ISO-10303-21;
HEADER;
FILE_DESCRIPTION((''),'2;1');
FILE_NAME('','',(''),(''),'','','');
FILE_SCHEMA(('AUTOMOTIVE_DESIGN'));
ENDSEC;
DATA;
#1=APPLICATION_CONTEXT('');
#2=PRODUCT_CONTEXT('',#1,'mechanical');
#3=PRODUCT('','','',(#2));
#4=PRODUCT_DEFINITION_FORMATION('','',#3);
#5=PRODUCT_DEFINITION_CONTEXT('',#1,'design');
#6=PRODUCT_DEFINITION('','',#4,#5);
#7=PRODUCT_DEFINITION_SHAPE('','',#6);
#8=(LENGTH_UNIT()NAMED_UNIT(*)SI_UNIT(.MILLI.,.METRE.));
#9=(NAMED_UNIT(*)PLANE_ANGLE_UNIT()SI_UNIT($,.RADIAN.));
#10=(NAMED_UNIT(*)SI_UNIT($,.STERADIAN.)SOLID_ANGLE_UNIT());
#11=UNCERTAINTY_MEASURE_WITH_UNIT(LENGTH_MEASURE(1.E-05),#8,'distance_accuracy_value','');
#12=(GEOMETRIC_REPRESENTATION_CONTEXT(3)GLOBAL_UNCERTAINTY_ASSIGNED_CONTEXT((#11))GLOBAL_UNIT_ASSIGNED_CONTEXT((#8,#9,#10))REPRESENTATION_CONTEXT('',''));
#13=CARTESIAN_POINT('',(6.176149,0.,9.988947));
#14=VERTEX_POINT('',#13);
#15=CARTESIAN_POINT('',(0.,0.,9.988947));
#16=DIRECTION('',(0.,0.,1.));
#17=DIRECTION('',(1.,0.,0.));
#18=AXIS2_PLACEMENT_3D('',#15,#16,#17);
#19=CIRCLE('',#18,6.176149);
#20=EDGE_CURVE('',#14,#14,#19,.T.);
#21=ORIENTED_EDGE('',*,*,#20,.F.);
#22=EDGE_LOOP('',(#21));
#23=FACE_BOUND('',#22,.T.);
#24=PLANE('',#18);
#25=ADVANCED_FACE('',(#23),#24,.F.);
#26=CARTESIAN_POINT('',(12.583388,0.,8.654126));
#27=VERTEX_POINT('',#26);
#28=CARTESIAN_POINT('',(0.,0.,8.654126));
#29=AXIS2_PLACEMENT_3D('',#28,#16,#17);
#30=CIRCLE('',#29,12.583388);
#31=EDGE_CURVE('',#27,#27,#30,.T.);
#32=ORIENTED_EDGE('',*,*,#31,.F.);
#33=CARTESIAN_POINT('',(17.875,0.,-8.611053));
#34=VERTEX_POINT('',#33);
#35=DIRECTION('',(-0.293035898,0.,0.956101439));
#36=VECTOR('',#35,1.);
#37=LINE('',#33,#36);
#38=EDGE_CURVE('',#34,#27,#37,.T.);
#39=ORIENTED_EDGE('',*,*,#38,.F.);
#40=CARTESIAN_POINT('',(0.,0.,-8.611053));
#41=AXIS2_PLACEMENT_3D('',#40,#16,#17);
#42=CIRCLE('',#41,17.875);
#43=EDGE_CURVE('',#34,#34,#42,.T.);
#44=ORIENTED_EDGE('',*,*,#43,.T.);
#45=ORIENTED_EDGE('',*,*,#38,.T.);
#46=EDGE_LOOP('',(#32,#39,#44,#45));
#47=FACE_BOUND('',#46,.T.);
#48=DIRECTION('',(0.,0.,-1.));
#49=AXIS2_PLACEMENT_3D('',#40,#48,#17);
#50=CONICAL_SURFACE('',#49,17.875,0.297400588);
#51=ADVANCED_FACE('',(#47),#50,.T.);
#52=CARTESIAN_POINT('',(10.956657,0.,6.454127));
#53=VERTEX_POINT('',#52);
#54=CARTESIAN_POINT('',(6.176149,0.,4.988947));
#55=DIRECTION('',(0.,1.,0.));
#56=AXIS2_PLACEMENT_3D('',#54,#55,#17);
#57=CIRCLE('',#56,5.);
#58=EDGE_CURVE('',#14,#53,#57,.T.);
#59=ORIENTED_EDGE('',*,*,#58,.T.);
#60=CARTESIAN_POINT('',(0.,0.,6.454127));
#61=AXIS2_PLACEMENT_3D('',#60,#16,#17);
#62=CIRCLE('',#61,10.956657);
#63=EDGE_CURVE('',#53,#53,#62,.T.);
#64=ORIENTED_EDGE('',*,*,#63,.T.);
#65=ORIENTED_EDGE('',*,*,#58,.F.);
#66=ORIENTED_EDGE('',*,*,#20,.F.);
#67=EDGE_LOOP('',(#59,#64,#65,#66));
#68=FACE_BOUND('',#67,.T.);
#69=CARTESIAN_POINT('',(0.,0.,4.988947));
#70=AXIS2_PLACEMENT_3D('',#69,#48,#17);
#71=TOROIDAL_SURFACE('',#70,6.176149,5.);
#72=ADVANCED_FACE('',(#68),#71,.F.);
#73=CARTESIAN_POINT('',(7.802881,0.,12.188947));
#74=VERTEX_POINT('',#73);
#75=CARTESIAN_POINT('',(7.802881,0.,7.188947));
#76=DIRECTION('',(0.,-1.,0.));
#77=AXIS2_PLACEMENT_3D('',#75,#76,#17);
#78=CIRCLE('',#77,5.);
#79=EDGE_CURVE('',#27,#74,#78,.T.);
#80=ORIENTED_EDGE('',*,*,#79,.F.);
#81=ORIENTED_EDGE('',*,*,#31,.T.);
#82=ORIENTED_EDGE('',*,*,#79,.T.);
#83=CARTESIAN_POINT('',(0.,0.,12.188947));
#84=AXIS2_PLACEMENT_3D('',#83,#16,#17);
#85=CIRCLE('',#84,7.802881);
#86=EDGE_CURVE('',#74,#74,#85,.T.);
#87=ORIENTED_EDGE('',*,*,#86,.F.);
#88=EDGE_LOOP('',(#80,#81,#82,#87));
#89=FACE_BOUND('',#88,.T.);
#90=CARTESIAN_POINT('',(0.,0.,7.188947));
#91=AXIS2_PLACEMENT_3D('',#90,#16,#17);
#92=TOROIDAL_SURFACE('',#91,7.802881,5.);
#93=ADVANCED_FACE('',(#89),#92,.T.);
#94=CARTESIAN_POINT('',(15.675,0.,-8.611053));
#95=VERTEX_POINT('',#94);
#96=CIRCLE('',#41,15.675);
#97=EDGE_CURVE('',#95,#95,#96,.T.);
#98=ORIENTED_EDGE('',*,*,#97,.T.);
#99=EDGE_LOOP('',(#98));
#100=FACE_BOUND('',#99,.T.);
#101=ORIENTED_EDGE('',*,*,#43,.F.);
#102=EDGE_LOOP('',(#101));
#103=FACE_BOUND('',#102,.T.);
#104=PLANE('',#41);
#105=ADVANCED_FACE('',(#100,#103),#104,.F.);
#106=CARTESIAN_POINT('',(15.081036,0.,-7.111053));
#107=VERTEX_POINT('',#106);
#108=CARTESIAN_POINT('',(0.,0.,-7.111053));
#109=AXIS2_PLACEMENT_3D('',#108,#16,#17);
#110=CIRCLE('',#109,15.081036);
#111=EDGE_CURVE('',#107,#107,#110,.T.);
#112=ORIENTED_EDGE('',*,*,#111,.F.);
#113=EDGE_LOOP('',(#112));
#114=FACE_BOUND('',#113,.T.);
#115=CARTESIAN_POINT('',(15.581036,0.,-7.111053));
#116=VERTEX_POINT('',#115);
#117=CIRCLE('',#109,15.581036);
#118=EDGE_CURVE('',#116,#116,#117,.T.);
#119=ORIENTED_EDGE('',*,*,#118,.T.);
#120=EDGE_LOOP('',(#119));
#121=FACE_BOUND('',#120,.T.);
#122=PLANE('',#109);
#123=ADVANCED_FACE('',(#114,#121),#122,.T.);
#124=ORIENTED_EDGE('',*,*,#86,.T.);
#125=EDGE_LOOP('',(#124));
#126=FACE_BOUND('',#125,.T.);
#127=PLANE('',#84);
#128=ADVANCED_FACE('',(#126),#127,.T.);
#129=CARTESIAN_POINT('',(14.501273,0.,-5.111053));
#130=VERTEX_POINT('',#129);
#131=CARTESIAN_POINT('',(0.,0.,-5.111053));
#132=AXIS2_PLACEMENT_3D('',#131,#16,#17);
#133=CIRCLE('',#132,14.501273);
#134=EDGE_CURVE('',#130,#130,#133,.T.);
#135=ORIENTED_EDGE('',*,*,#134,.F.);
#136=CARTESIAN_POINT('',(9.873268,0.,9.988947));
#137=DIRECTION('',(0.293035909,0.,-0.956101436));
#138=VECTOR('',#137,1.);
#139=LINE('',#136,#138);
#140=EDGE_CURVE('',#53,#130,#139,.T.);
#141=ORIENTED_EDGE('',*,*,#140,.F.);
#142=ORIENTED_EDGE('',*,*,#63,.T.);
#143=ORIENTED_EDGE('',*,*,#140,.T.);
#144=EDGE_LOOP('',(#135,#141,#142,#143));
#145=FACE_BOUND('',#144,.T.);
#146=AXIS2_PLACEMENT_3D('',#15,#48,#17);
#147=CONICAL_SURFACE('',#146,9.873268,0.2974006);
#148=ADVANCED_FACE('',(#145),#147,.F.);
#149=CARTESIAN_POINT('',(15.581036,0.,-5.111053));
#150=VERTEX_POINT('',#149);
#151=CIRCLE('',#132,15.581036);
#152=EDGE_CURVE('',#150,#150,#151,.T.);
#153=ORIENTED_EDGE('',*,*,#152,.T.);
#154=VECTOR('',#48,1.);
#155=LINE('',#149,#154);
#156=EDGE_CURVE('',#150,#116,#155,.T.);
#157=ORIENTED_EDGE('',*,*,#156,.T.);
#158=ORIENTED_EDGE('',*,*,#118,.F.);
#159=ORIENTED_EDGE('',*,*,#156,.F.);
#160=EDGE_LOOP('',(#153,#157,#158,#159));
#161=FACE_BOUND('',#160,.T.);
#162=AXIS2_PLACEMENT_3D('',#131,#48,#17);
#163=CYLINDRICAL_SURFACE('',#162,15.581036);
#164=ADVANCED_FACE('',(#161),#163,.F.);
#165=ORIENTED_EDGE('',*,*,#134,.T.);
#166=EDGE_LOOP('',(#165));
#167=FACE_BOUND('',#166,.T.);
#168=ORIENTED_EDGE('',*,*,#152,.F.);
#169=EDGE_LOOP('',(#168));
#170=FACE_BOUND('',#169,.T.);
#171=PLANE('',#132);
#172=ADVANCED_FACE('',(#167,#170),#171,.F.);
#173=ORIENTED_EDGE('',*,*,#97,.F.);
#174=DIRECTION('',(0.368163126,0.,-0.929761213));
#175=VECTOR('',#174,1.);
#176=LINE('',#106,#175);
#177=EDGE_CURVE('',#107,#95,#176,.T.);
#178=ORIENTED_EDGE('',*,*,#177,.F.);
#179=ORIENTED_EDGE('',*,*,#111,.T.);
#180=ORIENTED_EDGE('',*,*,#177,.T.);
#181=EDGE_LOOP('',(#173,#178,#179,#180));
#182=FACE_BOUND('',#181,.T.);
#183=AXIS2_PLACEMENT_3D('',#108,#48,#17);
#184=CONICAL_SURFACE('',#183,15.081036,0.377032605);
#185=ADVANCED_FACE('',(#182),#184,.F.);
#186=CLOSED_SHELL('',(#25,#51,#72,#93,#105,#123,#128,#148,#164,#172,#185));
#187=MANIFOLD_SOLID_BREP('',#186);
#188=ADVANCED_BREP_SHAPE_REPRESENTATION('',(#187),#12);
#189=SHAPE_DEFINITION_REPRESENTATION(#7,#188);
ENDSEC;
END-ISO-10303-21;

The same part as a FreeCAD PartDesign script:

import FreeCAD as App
import Part
import Sketcher
from FreeCAD import Vector


def edges_at(feature, points):
    """Names of the edges that pass closest to the given points."""
    edges = feature.Shape.Edges
    near = lambda p: min(range(len(edges)), key=lambda i: edges[i].distToShape(Part.Vertex(*p))[0])
    return sorted({f"Edge{near(p) + 1}" for p in points})


def add_polygon(sketch, points):
    """Adds a closed chain of lines whose ends are joined by coincident constraints."""
    first, n = sketch.GeometryCount, len(points)
    for a, b in zip(points, points[1:] + points[:1]):
        sketch.addGeometry(Part.LineSegment(App.Vector(*a, 0), App.Vector(*b, 0)), False)
    for i in range(n):
        sketch.addConstraint(Sketcher.Constraint("Coincident", first + i, 2, first + (i + 1) % n, 1))

doc = App.newDocument("Part")
body = doc.addObject("PartDesign::Body", "Body")

# Sketch on XZ plane
sketch1 = doc.addObject("Sketcher::SketchObject", "Sketch")
body.addObject(sketch1)
sketch1.AttachmentSupport = (doc.XZ_Plane, [""])
sketch1.MapMode = "FlatFace"
add_polygon(sketch1, [(15.7, -8.6), (17.9, -8.6), (11.5, 12.2), (0, 12.2), (0, 10), (9.9, 10), (14.5, -5.1), (15.6, -5.1), (15.6, -7.1), (15.1, -7.1)])  # lines 0-9
sketch1.addConstraint(Sketcher.Constraint("Horizontal", 0))
sketch1.addConstraint(Sketcher.Constraint("Horizontal", 2))
sketch1.addConstraint(Sketcher.Constraint("Vertical", 3))
sketch1.addConstraint(Sketcher.Constraint("Horizontal", 4))
sketch1.addConstraint(Sketcher.Constraint("Horizontal", 6))
sketch1.addConstraint(Sketcher.Constraint("Vertical", 7))
sketch1.addConstraint(Sketcher.Constraint("Horizontal", 8))
sketch1.addConstraint(Sketcher.Constraint("PointOnObject", 2, 2, -2))
sketch1.addConstraint(Sketcher.Constraint("Parallel", 1, 5))
sketch1.addConstraint(Sketcher.Constraint("Equal", 0, 3))
sketch1.addConstraint(Sketcher.Constraint("DistanceY", 7, 2, 7, 1, 2.0))
sketch1.addConstraint(Sketcher.Constraint("DistanceX", 0, 1, 0, 2, 2.2))
sketch1.addConstraint(Sketcher.Constraint("DistanceX", 2, 2, 2, 1, 11.5))
sketch1.addConstraint(Sketcher.Constraint("DistanceX", 8, 2, 8, 1, 0.5))
sketch1.addConstraint(Sketcher.Constraint("DistanceY", 0, 2, 1, 2, 20.8))
sketch1.addConstraint(Sketcher.Constraint("DistanceY", 0, 2, 5, 2, 3.5))
sketch1.addConstraint(Sketcher.Constraint("DistanceX", -1, 1, 0, 2, 17.875))
sketch1.addConstraint(Sketcher.Constraint("DistanceX", 4, 1, 4, 2, 9.873268))
sketch1.addConstraint(Sketcher.Constraint("DistanceX", 6, 1, 6, 2, 1.079763))
sketch1.addConstraint(Sketcher.Constraint("DistanceY", 0, 2, -1, 1, 8.611053))
revolution = doc.addObject("PartDesign::Revolution", "Revolution")
body.addObject(revolution)
revolution.Profile = sketch1
revolution.ReferenceAxis = (sketch1, ["V_Axis"])
revolution.Angle = 360
doc.recompute()

fillet = doc.addObject("PartDesign::Fillet", "Fillet")
body.addObject(fillet)
fillet.Base = (revolution, edges_at(revolution, [(-11.5, 0, 12.189), (-9.873, 0, 9.989)]))
fillet.Radius = 5

doc.recompute()
